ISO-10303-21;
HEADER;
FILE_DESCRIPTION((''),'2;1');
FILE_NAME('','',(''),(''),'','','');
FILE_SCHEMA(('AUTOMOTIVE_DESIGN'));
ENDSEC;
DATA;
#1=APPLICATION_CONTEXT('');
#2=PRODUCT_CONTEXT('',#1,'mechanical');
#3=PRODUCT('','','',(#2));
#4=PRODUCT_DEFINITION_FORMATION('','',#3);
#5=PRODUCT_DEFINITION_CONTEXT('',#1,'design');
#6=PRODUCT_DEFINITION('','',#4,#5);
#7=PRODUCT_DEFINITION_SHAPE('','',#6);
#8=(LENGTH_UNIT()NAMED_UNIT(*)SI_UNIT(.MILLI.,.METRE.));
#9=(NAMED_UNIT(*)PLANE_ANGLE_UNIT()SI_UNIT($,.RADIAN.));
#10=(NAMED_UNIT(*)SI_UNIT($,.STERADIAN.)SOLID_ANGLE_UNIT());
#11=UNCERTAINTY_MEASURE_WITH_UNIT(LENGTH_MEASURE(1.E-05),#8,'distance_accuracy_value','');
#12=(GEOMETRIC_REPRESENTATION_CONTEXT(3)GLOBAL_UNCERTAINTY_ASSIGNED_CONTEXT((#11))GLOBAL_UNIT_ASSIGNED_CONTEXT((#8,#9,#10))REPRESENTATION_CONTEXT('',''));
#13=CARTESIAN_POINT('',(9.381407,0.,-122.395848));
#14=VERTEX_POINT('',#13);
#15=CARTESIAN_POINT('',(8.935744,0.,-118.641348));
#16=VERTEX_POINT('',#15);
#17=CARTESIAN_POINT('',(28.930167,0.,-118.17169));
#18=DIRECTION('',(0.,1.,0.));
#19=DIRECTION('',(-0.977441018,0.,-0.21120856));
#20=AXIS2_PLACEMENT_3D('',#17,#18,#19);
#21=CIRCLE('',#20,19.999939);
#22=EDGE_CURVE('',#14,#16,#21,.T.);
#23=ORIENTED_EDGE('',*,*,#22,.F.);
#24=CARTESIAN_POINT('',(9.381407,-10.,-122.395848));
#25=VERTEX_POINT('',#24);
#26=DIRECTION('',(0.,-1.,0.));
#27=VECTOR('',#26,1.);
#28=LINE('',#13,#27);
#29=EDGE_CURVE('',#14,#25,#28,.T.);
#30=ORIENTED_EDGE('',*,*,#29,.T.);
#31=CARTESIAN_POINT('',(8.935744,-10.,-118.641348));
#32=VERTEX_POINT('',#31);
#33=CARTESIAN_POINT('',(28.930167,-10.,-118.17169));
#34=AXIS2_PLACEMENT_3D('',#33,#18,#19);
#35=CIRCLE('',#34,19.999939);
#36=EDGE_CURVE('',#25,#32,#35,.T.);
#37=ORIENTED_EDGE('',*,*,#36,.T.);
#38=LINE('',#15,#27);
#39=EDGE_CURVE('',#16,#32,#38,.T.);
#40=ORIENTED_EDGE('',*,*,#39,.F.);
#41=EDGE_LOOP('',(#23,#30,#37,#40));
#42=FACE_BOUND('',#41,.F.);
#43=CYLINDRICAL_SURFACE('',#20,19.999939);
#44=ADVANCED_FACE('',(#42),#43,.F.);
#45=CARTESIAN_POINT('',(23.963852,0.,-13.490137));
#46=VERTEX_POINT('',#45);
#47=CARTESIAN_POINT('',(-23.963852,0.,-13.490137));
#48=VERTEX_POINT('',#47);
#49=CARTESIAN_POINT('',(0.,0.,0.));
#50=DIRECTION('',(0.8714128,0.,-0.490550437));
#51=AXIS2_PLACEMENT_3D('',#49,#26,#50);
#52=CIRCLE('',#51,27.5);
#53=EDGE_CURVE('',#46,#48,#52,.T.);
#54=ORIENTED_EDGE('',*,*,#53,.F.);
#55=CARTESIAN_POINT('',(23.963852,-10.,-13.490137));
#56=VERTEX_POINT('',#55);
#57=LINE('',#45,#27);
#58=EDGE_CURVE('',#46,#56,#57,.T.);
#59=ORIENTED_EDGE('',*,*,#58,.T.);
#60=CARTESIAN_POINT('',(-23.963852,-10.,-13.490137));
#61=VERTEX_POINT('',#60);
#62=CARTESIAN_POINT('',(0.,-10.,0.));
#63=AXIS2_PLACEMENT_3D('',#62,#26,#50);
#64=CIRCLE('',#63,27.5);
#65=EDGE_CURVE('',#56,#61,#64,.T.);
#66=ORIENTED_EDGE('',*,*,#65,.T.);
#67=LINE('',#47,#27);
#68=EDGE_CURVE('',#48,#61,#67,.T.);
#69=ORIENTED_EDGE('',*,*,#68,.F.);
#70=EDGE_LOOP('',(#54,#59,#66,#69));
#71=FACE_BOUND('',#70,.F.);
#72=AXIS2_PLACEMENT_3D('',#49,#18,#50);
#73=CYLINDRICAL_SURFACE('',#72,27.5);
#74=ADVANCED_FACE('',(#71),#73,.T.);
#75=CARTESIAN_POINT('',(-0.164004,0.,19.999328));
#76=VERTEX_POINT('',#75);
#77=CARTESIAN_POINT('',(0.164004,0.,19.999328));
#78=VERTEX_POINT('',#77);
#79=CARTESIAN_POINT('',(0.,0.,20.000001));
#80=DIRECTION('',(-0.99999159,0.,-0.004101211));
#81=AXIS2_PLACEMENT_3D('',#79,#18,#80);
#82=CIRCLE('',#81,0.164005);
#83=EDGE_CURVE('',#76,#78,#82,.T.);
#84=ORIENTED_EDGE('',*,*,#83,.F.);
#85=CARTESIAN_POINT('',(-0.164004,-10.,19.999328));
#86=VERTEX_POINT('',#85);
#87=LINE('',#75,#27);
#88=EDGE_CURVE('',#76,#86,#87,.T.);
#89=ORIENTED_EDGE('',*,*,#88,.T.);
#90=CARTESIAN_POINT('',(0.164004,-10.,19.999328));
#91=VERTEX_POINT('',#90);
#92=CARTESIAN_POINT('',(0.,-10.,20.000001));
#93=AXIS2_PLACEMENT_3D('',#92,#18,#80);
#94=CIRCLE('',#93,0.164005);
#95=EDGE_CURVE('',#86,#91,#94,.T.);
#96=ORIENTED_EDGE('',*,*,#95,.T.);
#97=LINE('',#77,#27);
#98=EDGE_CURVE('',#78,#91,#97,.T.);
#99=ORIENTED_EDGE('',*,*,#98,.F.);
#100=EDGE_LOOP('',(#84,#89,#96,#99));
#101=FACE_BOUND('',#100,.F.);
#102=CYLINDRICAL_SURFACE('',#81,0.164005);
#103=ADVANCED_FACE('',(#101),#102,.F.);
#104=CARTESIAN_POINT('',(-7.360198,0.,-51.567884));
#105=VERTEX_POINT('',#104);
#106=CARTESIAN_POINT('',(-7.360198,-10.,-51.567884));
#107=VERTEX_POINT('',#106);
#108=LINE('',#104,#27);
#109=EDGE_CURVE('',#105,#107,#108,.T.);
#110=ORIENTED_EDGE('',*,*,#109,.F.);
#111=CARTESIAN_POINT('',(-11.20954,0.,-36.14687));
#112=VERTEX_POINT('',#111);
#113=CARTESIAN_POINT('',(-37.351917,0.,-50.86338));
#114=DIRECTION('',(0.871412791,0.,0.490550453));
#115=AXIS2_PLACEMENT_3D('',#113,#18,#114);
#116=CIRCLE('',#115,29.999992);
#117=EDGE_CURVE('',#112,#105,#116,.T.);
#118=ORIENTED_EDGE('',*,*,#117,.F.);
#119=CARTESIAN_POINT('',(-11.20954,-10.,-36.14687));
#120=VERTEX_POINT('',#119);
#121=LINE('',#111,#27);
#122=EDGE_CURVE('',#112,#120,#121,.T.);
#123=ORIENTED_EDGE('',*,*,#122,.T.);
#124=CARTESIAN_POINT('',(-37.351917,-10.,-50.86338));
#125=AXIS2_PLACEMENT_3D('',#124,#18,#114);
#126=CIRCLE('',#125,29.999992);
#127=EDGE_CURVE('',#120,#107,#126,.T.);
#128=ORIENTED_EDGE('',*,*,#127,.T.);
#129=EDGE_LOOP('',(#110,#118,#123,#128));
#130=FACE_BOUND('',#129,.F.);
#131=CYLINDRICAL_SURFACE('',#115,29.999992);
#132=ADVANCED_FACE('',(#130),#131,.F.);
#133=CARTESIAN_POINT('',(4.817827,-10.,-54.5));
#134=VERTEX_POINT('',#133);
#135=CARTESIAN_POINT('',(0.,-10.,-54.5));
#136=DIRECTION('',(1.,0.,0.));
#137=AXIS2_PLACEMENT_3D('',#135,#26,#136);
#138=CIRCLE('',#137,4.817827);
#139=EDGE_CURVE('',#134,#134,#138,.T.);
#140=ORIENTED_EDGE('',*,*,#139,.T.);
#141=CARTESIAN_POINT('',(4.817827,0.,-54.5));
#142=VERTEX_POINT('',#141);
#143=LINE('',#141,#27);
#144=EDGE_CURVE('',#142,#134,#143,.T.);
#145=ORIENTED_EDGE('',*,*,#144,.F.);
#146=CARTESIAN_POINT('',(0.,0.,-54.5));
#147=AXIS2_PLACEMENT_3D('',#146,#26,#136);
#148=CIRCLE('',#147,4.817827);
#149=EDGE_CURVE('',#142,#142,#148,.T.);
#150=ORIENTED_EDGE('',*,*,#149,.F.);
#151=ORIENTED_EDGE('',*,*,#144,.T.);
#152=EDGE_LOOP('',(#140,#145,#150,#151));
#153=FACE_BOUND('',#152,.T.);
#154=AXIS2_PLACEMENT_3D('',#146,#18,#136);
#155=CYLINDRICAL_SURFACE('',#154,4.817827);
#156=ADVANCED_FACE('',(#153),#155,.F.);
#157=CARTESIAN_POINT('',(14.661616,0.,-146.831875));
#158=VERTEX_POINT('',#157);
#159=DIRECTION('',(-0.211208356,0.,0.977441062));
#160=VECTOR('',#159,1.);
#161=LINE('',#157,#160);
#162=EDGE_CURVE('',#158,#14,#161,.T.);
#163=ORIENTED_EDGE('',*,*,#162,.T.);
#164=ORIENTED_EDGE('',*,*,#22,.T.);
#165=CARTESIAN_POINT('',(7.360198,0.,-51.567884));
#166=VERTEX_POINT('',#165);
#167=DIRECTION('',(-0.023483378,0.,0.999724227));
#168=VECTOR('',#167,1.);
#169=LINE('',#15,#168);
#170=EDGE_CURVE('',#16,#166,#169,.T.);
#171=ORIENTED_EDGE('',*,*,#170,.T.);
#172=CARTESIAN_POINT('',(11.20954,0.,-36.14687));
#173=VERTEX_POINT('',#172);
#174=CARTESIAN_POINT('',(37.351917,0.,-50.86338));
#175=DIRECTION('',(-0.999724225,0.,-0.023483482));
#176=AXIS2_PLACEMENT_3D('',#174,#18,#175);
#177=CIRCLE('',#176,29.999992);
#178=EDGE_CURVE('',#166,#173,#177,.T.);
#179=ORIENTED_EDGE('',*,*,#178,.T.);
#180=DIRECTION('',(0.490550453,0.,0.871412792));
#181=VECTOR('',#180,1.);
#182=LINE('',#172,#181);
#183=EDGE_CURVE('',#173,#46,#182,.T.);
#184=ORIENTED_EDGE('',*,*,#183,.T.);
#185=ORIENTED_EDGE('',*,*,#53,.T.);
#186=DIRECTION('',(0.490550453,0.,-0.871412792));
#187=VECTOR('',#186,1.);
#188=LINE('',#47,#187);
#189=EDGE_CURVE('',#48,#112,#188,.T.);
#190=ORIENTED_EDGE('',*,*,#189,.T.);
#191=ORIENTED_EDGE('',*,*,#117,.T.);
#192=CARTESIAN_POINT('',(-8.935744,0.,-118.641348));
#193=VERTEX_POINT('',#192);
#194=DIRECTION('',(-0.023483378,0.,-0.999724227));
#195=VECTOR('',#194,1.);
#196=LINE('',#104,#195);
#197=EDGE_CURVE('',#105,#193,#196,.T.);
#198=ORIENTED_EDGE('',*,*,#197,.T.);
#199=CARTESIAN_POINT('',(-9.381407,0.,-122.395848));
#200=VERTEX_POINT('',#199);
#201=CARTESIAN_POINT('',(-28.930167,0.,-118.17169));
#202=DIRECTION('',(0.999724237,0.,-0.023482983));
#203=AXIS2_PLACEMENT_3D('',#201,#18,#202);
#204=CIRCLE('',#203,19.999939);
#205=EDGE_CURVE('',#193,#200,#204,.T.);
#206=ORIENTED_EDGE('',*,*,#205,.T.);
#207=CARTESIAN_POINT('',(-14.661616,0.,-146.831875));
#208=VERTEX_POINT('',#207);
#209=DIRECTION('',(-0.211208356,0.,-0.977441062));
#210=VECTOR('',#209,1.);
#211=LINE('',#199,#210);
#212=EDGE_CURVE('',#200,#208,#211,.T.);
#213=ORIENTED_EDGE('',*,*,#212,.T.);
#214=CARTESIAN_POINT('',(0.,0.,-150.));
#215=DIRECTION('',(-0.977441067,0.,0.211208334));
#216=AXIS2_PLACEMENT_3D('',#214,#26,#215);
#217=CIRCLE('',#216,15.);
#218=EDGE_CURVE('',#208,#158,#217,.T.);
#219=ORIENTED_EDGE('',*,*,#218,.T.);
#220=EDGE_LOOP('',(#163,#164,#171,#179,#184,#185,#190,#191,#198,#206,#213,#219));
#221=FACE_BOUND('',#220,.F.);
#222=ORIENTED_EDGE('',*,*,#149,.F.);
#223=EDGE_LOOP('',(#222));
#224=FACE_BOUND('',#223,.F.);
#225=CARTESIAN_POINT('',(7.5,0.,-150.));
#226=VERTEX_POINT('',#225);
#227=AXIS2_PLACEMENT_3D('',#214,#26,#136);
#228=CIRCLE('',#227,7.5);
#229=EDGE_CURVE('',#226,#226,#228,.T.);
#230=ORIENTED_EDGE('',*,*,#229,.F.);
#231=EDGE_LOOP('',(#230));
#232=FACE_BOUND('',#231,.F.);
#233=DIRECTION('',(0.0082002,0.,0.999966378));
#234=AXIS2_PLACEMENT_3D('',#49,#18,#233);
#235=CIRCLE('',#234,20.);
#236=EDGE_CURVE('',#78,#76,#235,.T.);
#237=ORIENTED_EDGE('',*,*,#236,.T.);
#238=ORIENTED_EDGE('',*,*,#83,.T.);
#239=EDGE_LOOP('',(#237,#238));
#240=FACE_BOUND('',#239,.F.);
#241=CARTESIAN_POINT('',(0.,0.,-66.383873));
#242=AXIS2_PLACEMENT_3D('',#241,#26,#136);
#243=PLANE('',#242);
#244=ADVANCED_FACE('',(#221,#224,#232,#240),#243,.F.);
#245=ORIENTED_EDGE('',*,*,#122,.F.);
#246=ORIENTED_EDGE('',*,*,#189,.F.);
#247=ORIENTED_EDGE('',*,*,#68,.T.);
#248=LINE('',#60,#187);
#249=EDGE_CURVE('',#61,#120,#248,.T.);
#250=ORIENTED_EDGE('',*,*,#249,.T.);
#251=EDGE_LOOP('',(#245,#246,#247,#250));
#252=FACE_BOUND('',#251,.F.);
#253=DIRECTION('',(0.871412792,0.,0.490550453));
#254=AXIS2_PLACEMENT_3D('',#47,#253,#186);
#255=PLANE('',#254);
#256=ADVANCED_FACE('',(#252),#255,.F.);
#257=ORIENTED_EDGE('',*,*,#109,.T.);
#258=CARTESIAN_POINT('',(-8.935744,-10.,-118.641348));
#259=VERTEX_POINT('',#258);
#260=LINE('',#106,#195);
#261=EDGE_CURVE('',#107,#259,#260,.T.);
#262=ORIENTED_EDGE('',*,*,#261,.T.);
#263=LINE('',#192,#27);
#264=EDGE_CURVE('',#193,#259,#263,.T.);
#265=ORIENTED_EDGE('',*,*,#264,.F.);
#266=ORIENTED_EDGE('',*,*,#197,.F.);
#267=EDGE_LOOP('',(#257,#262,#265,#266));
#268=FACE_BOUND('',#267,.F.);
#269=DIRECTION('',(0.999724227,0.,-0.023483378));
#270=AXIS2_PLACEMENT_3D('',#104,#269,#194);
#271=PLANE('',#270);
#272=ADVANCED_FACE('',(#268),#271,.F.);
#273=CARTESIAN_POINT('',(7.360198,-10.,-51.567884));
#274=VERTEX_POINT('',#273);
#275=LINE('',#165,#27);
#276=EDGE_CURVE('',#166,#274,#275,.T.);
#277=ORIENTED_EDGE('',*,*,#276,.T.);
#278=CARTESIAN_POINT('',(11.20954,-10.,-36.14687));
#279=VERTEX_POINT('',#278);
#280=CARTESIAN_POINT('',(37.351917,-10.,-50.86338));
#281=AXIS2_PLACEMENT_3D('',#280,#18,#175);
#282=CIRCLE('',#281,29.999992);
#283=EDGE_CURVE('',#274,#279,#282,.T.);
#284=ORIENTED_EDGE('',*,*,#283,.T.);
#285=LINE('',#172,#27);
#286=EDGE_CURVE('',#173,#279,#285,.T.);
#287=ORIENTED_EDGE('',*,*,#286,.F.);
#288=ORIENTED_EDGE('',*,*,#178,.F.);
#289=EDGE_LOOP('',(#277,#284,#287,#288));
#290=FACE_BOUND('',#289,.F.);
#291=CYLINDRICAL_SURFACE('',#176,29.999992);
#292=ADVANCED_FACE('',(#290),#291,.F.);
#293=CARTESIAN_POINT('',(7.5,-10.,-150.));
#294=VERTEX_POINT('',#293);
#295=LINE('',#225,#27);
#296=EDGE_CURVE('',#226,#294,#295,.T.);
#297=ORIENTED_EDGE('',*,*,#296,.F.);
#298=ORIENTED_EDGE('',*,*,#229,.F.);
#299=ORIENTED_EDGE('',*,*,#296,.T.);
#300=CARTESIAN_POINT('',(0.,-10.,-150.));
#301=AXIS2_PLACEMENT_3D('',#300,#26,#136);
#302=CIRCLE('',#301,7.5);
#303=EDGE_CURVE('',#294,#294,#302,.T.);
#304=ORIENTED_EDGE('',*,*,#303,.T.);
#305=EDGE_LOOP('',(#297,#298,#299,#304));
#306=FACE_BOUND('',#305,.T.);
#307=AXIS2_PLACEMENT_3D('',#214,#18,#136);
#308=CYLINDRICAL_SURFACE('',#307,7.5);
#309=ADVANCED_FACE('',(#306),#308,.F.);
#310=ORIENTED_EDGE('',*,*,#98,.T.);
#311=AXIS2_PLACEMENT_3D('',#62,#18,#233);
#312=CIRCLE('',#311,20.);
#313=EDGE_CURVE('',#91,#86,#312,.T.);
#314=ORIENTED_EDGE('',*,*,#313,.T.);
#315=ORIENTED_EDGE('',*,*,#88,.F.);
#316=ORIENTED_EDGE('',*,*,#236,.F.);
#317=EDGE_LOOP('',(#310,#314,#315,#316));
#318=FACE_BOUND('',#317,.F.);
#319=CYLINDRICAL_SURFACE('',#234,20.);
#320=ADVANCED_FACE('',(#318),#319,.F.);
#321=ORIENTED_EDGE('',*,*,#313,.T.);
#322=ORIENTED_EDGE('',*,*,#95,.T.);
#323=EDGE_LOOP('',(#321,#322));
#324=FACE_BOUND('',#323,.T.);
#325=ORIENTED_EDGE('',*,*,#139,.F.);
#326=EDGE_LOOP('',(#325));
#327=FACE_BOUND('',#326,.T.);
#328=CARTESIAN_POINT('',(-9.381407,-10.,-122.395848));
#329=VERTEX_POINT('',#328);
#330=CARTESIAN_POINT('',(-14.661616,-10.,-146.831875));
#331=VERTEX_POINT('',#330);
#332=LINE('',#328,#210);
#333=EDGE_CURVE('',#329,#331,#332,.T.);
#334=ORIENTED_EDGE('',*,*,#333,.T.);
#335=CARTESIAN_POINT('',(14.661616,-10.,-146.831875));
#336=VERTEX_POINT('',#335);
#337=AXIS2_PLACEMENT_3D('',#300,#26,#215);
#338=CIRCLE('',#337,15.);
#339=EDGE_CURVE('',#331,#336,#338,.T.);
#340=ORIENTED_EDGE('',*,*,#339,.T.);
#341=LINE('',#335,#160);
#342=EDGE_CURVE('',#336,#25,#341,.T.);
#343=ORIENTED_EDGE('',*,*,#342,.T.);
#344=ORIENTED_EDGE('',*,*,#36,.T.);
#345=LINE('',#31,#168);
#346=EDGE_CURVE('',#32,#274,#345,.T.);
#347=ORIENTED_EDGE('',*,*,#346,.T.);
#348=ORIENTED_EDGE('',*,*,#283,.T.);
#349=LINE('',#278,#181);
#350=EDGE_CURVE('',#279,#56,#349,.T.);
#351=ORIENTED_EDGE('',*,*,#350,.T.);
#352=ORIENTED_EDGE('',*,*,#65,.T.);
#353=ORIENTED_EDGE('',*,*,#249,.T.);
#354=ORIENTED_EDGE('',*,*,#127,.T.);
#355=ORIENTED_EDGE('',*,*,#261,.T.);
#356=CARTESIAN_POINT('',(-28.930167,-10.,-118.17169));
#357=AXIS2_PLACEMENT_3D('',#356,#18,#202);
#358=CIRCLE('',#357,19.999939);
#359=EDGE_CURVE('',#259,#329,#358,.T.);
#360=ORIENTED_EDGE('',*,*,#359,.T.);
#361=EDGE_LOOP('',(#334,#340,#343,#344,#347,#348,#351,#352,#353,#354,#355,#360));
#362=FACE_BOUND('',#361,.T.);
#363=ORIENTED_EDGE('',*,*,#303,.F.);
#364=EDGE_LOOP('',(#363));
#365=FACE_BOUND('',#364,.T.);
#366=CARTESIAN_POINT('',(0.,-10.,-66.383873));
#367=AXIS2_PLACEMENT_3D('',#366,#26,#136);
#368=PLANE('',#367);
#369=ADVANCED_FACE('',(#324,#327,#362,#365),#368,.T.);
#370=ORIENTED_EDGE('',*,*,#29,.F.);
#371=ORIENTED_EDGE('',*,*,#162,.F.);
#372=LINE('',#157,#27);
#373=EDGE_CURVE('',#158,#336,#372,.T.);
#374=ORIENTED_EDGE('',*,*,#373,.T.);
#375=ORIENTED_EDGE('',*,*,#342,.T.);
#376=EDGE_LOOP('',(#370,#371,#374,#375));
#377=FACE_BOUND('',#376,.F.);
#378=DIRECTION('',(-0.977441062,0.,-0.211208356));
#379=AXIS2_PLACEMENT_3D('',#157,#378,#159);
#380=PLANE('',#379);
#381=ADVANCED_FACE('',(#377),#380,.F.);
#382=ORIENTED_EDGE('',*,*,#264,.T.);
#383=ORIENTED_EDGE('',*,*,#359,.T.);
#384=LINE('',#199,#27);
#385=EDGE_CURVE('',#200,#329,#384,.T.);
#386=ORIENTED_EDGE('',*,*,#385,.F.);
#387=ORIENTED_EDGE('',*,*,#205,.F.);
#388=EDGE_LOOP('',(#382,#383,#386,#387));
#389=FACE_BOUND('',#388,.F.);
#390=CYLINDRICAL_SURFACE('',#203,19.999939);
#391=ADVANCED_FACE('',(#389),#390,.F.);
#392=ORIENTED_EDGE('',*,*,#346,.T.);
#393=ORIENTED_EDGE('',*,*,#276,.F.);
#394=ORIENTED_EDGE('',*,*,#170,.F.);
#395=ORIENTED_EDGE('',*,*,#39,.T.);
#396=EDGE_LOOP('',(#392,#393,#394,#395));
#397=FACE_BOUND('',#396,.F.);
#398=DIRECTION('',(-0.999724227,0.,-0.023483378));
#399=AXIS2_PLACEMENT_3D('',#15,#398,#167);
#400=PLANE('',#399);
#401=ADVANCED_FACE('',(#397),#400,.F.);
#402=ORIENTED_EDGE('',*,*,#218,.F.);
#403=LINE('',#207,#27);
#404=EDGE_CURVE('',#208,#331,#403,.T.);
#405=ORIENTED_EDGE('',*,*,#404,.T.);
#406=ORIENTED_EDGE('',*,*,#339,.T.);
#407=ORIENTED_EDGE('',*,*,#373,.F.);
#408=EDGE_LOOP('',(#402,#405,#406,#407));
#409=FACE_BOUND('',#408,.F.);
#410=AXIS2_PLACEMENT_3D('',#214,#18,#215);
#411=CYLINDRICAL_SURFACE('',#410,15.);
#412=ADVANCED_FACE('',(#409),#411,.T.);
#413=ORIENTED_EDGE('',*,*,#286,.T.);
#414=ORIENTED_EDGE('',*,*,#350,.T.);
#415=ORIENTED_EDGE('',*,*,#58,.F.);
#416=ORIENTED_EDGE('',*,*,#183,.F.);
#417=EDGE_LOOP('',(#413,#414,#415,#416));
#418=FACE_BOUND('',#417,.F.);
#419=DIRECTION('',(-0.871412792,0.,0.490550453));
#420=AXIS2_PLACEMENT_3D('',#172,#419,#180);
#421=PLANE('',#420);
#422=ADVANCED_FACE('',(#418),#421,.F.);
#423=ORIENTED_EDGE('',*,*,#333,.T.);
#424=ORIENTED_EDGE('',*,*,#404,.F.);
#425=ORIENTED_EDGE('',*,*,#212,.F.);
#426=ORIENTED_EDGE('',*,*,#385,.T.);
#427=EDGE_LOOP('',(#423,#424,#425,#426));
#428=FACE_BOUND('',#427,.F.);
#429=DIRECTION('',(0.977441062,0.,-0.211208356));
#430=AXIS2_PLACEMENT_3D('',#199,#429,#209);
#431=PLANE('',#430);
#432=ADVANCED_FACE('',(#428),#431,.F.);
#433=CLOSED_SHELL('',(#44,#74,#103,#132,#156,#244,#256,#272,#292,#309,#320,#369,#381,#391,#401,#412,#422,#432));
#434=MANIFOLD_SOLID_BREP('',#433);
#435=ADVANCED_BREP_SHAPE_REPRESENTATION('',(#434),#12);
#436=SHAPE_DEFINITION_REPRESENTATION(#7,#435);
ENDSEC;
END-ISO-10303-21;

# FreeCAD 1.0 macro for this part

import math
import FreeCAD as App
import Part
import Sketcher
from FreeCAD import Vector
Q = App.Units.Quantity

doc = App.newDocument("Part")
params = doc.addObject("Spreadsheet::Sheet", "Params")
for row, (alias, value) in enumerate([
    ("sketch1_diameter", "15 mm"),
    ("sketch1_radius", "15 mm"),
    ("sketch1_radius2", "20 mm"),
    ("sketch1_radius3", "27.5 mm"),
    ("sketch1_length", "26 mm"),
    ("pad1_length", "10 mm"),
], start=1):
    params.set(f"A{row}", alias)
    params.set(f"B{row}", "=" + value)
    params.setAlias(f"B{row}", alias)

body = doc.addObject("PartDesign::Body", "Body")

# Sketch on XZ plane
sketch1 = body.newObject("Sketcher::SketchObject", "Sketch")
sketch1.AttachmentSupport = (doc.getObject("XZ_Plane"), [""])
sketch1.MapMode = "FlatFace"
sketch1.addGeometry(Part.LineSegment(Vector(11.21, -36.15, 0), Vector(23.96, -13.49, 0)), False)
sketch1.addGeometry(Part.ArcOfCircle(Part.Circle(Vector(0, 0, 0), Vector(0, 0, 1), 27.5), math.radians(-29), math.radians(209)), False)
sketch1.addGeometry(Part.LineSegment(Vector(-23.96, -13.49, 0), Vector(-11.21, -36.15, 0)), False)
sketch1.addGeometry(Part.ArcOfCircle(Part.Circle(Vector(-37.35, -50.86, 0), Vector(0, 0, 1), 30), math.radians(-1), math.radians(29)), False)
sketch1.addGeometry(Part.LineSegment(Vector(-7.36, -51.57, 0), Vector(-8.94, -118.64, 0)), False)
sketch1.addGeometry(Part.ArcOfCircle(Part.Circle(Vector(-28.93, -118.17, 0), Vector(0, 0, 1), 20), math.radians(-12.19), math.radians(-1.35)), False)
sketch1.addGeometry(Part.LineSegment(Vector(-9.38, -122.4, 0), Vector(-14.66, -146.83, 0)), False)
sketch1.addGeometry(Part.ArcOfCircle(Part.Circle(Vector(0, -150, 0), Vector(0, 0, 1), 15), math.radians(168), math.radians(372)), False)
sketch1.addGeometry(Part.LineSegment(Vector(14.66, -146.83, 0), Vector(9.38, -122.4, 0)), False)
sketch1.addGeometry(Part.ArcOfCircle(Part.Circle(Vector(28.93, -118.17, 0), Vector(0, 0, 1), 20), math.radians(-178.65), math.radians(-167.81)), False)
sketch1.addGeometry(Part.LineSegment(Vector(8.94, -118.64, 0), Vector(7.36, -51.57, 0)), False)
sketch1.addGeometry(Part.ArcOfCircle(Part.Circle(Vector(37.35, -50.86, 0), Vector(0, 0, 1), 30), math.radians(151), math.radians(181)), False)
sketch1.addGeometry(Part.Circle(Vector(0, -150, 0), Vector(0, 0, 1), 7.5), False)
sketch1.addGeometry(Part.Circle(Vector(0, -54.5, 0), Vector(0, 0, 1), 4.82), False)
sketch1.addGeometry(Part.ArcOfCircle(Part.Circle(Vector(0, 20, 0), Vector(0, 0, 1), 0.16), math.radians(0), math.radians(180)), False)
sketch1.addGeometry(Part.ArcOfCircle(Part.Circle(Vector(0, 0, 0), Vector(0, 0, 1), 20), math.radians(90), math.radians(450)), False)
sketch1.addConstraint(Sketcher.Constraint("Tangent", 0, 2, 1, 1))
sketch1.addConstraint(Sketcher.Constraint("Tangent", 1, 2, 2, 1))
sketch1.addConstraint(Sketcher.Constraint("Tangent", 2, 2, 3, 2))
sketch1.addConstraint(Sketcher.Constraint("Tangent", 3, 1, 4, 1))
sketch1.addConstraint(Sketcher.Constraint("Tangent", 4, 2, 5, 2))
sketch1.addConstraint(Sketcher.Constraint("Tangent", 5, 1, 6, 1))
sketch1.addConstraint(Sketcher.Constraint("Tangent", 6, 2, 7, 1))
sketch1.addConstraint(Sketcher.Constraint("Tangent", 7, 2, 8, 1))
sketch1.addConstraint(Sketcher.Constraint("Tangent", 8, 2, 9, 2))
sketch1.addConstraint(Sketcher.Constraint("Tangent", 9, 1, 10, 1))
sketch1.addConstraint(Sketcher.Constraint("Tangent", 10, 2, 11, 2))
sketch1.addConstraint(Sketcher.Constraint("Tangent", 11, 1, 0, 1))
sketch1.addConstraint(Sketcher.Constraint("Coincident", 14, 1, 15, 2))
sketch1.addConstraint(Sketcher.Constraint("Coincident", 15, 1, 14, 2))
sketch1.addConstraint(Sketcher.Constraint("Coincident", 1, 3, -1, 1))
sketch1.addConstraint(Sketcher.Constraint("Coincident", 15, 3, -1, 1))
sketch1.addConstraint(Sketcher.Constraint("Coincident", 12, 3, 7, 3))
sketch1.addConstraint(Sketcher.Constraint("Equal", 5, 9))
sketch1.addConstraint(Sketcher.Constraint("Equal", 3, 11))
sketch1.addConstraint(Sketcher.Constraint("Symmetric", 5, 3, 9, 3, -2))
sketch1.addConstraint(Sketcher.Constraint("Symmetric", 3, 3, 11, 3, -2))
sketch1.addConstraint(Sketcher.Constraint("PointOnObject", 7, 3, -2))
sketch1.addConstraint(Sketcher.Constraint("PointOnObject", 13, 3, -2))
sketch1.addConstraint(Sketcher.Constraint("PointOnObject", 14, 3, -2))
sketch1.addConstraint(Sketcher.Constraint("Diameter", 12, Q("15 mm")))
sketch1.addConstraint(Sketcher.Constraint("Radius", 7, Q("15 mm")))
sketch1.addConstraint(Sketcher.Constraint("Radius", 15, Q("20 mm")))
sketch1.addConstraint(Sketcher.Constraint("Radius", 1, Q("27.5 mm")))
sketch1.addConstraint(Sketcher.Constraint("Distance", 0, Q("26 mm")))
sketch1.addConstraint(Sketcher.Constraint("Distance", 6, Q("25 mm")))
sketch1.addConstraint(Sketcher.Constraint("DistanceY", 7, 3, -1, 1, Q("150 mm")))
sketch1.addConstraint(Sketcher.Constraint("DistanceY", -1, 1, 14, 3, Q("20.000001 mm")))
sketch1.addConstraint(Sketcher.Constraint("DistanceY", 13, 3, -1, 1, Q("54.5 mm")))
sketch1.addConstraint(Sketcher.Constraint("Radius", 5, Q("19.999939 mm")))
sketch1.addConstraint(Sketcher.Constraint("Diameter", 13, Q("9.635654 mm")))
sketch1.addConstraint(Sketcher.Constraint("Radius", 3, Q("29.999992 mm")))
sketch1.addConstraint(Sketcher.Constraint("Radius", 14, Q("0.164005 mm")))
sketch1.addConstraint(Sketcher.Constraint("DistanceX", 3, 1, -1, 1, Q("7.360198 mm")))
sketch1.addConstraint(Sketcher.Constraint("DistanceY", 5, 1, 4, 2, Q("3.7545 mm")))
sketch1.setExpression("Constraints[24]", "Params.sketch1_diameter")
sketch1.setExpression("Constraints[25]", "Params.sketch1_radius")
sketch1.setExpression("Constraints[26]", "Params.sketch1_radius2")
sketch1.setExpression("Constraints[27]", "Params.sketch1_radius3")
sketch1.setExpression("Constraints[28]", "Params.sketch1_length")
pad1 = body.newObject("PartDesign::Pad", "Pad")
pad1.Profile = sketch1
pad1.setExpression("Length", "Params.pad1_length")

doc.recompute()
